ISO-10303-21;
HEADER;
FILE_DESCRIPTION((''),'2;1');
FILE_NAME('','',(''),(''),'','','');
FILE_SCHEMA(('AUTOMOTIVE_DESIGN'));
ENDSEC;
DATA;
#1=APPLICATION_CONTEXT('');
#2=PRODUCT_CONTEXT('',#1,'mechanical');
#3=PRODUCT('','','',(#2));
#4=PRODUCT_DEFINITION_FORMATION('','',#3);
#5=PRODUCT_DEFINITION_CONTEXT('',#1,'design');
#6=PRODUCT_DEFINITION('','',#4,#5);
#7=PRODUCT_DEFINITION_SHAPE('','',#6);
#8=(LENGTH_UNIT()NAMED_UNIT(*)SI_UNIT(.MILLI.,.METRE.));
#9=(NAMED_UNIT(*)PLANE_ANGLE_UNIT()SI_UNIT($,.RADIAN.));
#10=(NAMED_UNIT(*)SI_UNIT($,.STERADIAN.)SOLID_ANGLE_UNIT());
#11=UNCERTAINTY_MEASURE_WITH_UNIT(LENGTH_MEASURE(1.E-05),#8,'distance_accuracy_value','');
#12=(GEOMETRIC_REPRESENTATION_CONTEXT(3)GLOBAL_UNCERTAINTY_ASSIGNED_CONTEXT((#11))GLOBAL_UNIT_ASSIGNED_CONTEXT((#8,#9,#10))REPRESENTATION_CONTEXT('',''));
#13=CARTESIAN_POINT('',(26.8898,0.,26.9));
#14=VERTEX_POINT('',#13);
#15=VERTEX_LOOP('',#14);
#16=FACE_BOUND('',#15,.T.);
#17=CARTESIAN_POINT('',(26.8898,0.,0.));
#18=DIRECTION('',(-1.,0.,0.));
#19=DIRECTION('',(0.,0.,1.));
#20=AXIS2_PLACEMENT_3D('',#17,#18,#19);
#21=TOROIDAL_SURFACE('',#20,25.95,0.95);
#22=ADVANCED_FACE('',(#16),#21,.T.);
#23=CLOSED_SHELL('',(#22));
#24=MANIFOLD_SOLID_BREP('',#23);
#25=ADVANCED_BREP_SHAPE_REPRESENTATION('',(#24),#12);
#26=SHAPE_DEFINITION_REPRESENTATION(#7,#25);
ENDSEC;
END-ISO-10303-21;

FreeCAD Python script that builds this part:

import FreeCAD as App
import Part
import Sketcher

doc = App.newDocument("Part")
body = doc.addObject("PartDesign::Body", "Body")

# Sketch on XY plane
sketch1 = doc.addObject("Sketcher::SketchObject", "Sketch")
body.addObject(sketch1)
sketch1.AttachmentSupport = (doc.XY_Plane, [""])
sketch1.MapMode = "FlatFace"
sketch1.addGeometry(Part.Circle(App.Vector(26.9, 26, 0), App.Vector(0, 0, 1), 1), False)
sketch1.addConstraint([
    Sketcher.Constraint("Diameter", 0, 1.9),
    Sketcher.Constraint("DistanceY", -1, 1, 0, 3, 25.95),
    Sketcher.Constraint("DistanceX", -1, 1, 0, 3, 26.8898),
])
revolution = doc.addObject("PartDesign::Revolution", "Revolution")
body.addObject(revolution)
revolution.Profile = sketch1
revolution.ReferenceAxis = (sketch1, ["H_Axis"])
revolution.Angle = 360

doc.recompute()
